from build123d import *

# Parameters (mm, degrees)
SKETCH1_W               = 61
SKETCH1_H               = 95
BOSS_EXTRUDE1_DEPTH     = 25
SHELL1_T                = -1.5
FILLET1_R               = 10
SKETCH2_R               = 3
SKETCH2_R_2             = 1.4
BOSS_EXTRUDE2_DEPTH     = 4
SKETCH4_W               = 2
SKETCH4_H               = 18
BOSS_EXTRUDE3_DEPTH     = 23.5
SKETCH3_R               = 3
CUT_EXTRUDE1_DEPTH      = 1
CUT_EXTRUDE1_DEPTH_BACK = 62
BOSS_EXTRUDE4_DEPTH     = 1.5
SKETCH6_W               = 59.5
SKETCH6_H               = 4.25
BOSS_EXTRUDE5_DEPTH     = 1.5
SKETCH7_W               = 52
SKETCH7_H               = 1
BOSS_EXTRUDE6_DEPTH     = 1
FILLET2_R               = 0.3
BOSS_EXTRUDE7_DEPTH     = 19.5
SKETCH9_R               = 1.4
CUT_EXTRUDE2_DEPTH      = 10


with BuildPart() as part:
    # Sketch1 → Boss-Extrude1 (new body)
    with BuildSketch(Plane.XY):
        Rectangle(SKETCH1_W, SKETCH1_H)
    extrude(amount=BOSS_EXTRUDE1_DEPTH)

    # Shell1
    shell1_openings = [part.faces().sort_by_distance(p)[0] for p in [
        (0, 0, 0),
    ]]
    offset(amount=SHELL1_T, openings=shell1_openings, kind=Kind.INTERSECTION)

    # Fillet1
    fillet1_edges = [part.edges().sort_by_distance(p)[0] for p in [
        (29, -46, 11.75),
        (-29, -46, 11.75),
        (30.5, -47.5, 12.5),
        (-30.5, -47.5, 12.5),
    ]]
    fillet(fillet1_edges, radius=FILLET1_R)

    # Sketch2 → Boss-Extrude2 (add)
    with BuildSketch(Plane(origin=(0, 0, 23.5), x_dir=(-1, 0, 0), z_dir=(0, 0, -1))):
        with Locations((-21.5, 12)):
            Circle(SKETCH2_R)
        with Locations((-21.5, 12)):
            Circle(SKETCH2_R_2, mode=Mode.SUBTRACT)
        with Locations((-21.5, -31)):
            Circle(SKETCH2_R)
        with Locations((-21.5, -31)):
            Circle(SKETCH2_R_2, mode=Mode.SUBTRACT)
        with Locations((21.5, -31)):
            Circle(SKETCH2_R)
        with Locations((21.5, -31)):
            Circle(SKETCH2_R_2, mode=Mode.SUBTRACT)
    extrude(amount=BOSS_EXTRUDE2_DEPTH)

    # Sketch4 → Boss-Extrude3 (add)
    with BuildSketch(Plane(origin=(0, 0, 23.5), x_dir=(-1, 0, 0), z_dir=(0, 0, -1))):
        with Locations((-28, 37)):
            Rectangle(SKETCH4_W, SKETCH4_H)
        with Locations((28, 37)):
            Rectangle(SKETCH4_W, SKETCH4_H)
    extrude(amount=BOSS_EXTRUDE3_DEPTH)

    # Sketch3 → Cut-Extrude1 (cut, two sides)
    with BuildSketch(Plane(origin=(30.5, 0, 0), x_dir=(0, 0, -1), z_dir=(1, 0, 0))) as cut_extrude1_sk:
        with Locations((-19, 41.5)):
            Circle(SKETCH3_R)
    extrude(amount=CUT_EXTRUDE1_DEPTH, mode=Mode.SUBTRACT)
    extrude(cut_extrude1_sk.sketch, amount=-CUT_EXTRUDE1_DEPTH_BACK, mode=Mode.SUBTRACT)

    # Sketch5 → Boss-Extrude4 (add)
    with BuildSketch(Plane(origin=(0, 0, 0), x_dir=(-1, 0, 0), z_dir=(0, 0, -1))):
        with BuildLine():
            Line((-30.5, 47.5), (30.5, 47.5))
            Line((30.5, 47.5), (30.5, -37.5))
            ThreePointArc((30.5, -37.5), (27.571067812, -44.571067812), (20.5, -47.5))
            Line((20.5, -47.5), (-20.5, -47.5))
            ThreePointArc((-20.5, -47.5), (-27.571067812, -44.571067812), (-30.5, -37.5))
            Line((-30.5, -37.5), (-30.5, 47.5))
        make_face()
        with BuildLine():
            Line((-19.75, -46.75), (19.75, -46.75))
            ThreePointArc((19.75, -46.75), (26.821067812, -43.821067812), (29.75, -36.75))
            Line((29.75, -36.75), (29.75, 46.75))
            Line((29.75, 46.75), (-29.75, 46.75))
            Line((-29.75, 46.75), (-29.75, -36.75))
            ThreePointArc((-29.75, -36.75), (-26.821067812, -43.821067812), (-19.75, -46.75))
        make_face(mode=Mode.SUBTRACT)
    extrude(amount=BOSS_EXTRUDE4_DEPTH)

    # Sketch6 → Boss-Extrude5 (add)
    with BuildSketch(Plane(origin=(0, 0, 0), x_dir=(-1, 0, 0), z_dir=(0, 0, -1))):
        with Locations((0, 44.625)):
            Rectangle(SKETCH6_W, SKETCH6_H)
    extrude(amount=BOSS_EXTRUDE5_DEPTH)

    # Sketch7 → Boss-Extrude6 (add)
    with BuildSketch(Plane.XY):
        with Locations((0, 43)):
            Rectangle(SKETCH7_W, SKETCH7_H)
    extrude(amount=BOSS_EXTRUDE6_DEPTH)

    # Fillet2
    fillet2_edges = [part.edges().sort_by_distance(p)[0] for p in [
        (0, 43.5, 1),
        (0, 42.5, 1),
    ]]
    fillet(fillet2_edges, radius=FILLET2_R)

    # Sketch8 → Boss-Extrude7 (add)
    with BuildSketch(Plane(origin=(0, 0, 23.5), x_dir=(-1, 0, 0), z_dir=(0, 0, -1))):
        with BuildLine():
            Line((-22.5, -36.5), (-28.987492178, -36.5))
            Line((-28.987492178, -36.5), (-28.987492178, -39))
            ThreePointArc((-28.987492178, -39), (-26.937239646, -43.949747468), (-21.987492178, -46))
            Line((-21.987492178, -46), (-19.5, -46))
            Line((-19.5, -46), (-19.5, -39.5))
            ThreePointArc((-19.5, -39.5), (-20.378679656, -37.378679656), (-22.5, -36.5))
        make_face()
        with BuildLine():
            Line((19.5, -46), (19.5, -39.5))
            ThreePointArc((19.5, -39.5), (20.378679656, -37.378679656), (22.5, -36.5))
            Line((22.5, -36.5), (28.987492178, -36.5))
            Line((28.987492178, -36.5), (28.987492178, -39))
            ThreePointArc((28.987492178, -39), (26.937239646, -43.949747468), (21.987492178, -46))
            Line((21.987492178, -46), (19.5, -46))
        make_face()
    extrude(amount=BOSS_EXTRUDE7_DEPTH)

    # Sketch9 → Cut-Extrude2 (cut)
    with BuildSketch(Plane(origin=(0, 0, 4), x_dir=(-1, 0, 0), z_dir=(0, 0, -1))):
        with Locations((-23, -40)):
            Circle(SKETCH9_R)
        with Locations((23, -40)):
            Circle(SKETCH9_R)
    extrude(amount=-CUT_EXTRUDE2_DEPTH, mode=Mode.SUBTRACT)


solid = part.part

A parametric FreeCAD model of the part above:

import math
import FreeCAD as App
import Part
import Sketcher
from FreeCAD import Vector


def edges_at(feature, points):
    """Names of the edges that pass closest to the given points."""
    edges = feature.Shape.Edges
    near = lambda p: min(range(len(edges)), key=lambda i: edges[i].distToShape(Part.Vertex(*p))[0])
    return sorted({f"Edge{near(p) + 1}" for p in points})


def faces_at(feature, points):
    """Names of the faces that lie closest to the given points."""
    faces = feature.Shape.Faces
    near = lambda p: min(range(len(faces)), key=lambda i: faces[i].distToShape(Part.Vertex(*p))[0])
    return sorted({f"Face{near(p) + 1}" for p in points})

doc = App.newDocument("Part")
params = doc.addObject("Spreadsheet::Sheet", "Params")
for row, (alias, value) in enumerate([
    ("sketch1_width", "61 mm"),
    ("sketch1_height", "95 mm"),
    ("pad1_length", "25 mm"),
    ("thickness_wall", "1.5 mm"),
    ("fillet_radius", "10 mm"),
    ("sketch2_diameter", "6 mm"),
    ("sketch2_diameter2", "2.8 mm"),
    ("pad2_length", "4 mm"),
    ("sketch3_width", "2 mm"),
    ("sketch3_height", "18 mm"),
    ("pad3_length", "23.5 mm"),
    ("sketch4_diameter", "6 mm"),
    ("sketch5_radius", "10 mm"),
    ("sketch5_width", "61 mm"),
    ("sketch5_height", "85 mm"),
    ("sketch5_width2", "59.5 mm"),
    ("sketch5_height2", "83.5 mm"),
    ("pad4_length", "1.5 mm"),
    ("sketch6_width", "59.5 mm"),
    ("sketch6_height", "4.25 mm"),
    ("pad5_length", "1.5 mm"),
    ("sketch7_width", "52 mm"),
    ("sketch7_height", "1 mm"),
    ("pad6_length", "1 mm"),
    ("fillet2_radius", "0.3 mm"),
    ("sketch8_radius", "7 mm"),
    ("sketch8_radius2", "3 mm"),
    ("sketch8_height", "2.5 mm"),
    ("pad7_length", "19.5 mm"),
    ("sketch9_diameter", "2.8 mm"),
    ("pocket2_length", "10 mm"),
], start=1):
    params.set(f"A{row}", alias)
    params.set(f"B{row}", "=" + value)
    params.setAlias(f"B{row}", alias)

body = doc.addObject("PartDesign::Body", "Body")

sketch1 = body.newObject("Sketcher::SketchObject", "Sketch")
sketch1.AttachmentSupport = (doc.getObject("XY_Plane"), [""])
sketch1.MapMode = "FlatFace"
sketch1.addGeometry([
    Part.LineSegment(Vector(-30.5, 47.5, 0), Vector(-30.5, -47.5, 0)),
    Part.LineSegment(Vector(-30.5, -47.5, 0), Vector(30.5, -47.5, 0)),
    Part.LineSegment(Vector(30.5, -47.5, 0), Vector(30.5, 47.5, 0)),
    Part.LineSegment(Vector(30.5, 47.5, 0), Vector(-30.5, 47.5, 0)),
], False)
sketch1.addConstraint([
    Sketcher.Constraint("Coincident", 0, 2, 1, 1),
    Sketcher.Constraint("Coincident", 1, 2, 2, 1),
    Sketcher.Constraint("Coincident", 2, 2, 3, 1),
    Sketcher.Constraint("Coincident", 3, 2, 0, 1),
    Sketcher.Constraint("Vertical", 0),
    Sketcher.Constraint("Horizontal", 1),
    Sketcher.Constraint("Vertical", 2),
    Sketcher.Constraint("Horizontal", 3),
    Sketcher.Constraint("Symmetric", 0, 2, 2, 2, -1, 1),
    Sketcher.Constraint("DistanceX", 1, 1, 1, 2, 61.0),
    Sketcher.Constraint("DistanceY", 0, 2, 0, 1, 95.0),
])
sketch1.setExpression("Constraints[9]", "Params.sketch1_width")
sketch1.setExpression("Constraints[10]", "Params.sketch1_height")
pad1 = body.newObject("PartDesign::Pad", "Pad")
pad1.Profile = sketch1
pad1.setExpression("Length", "Params.pad1_length")
doc.recompute()

thickness = body.newObject("PartDesign::Thickness", "Thickness")
thickness.Base = (pad1, faces_at(pad1, [(0, 0, 0)]))
thickness.setExpression("Value", "Params.thickness_wall")
thickness.Reversed = True
thickness.Join = "Intersection"
doc.recompute()

fillet = body.newObject("PartDesign::Fillet", "Fillet")
fillet.Base = (thickness, edges_at(thickness, [
    (29, -46, 11.75),
    (-29, -46, 11.75),
    (30.5, -47.5, 12.5),
    (-30.5, -47.5, 12.5),
]))
fillet.setExpression("Radius", "Params.fillet_radius")

sketch2 = body.newObject("Sketcher::SketchObject", "Sketch001")
sketch2.AttachmentSupport = (doc.getObject("XY_Plane"), [""])
sketch2.MapMode = "FlatFace"
sketch2.AttachmentOffset = App.Placement(Vector(0, 0, 23.5), App.Rotation())
sketch2.addGeometry([
    Part.Circle(Vector(21.5, 12, 0), Vector(0, 0, 1), 3),
    Part.Circle(Vector(21.5, 12, 0), Vector(0, 0, 1), 1.4),
    Part.Circle(Vector(21.5, -31, 0), Vector(0, 0, 1), 3),
    Part.Circle(Vector(21.5, -31, 0), Vector(0, 0, 1), 1.4),
    Part.Circle(Vector(-21.5, -31, 0), Vector(0, 0, 1), 3),
    Part.Circle(Vector(-21.5, -31, 0), Vector(0, 0, 1), 1.4),
], False)
sketch2.addConstraint([
    Sketcher.Constraint("Coincident", 1, 3, 0, 3),
    Sketcher.Constraint("Coincident", 3, 3, 2, 3),
    Sketcher.Constraint("Coincident", 5, 3, 4, 3),
    Sketcher.Constraint("Equal", 0, 2),
    Sketcher.Constraint("Equal", 1, 3),
    Sketcher.Constraint("Equal", 2, 4),
    Sketcher.Constraint("Equal", 3, 5),
    Sketcher.Constraint("Symmetric", 2, 3, 4, 3, -2),
    Sketcher.Constraint("Vertical", 1, 3, 2, 3),
    Sketcher.Constraint("Diameter", 0, 6.0),
    Sketcher.Constraint("Diameter", 1, 2.8),
    Sketcher.Constraint("DistanceY", -1, 1, 0, 3, 12.0),
    Sketcher.Constraint("DistanceY", 2, 3, -1, 1, 31.0),
    Sketcher.Constraint("DistanceX", 4, 3, 2, 3, 43.0),
])
sketch2.setExpression("Constraints[9]", "Params.sketch2_diameter")
sketch2.setExpression("Constraints[10]", "Params.sketch2_diameter2")
pad2 = body.newObject("PartDesign::Pad", "Pad001")
pad2.Profile = sketch2
pad2.setExpression("Length", "Params.pad2_length")
pad2.Reversed = True

sketch3 = body.newObject("Sketcher::SketchObject", "Sketch002")
sketch3.AttachmentSupport = (doc.getObject("XY_Plane"), [""])
sketch3.MapMode = "FlatFace"
sketch3.AttachmentOffset = App.Placement(Vector(0, 0, 23.5), App.Rotation())
sketch3.addGeometry([
    Part.LineSegment(Vector(29, 46, 0), Vector(29, 28, 0)),
    Part.LineSegment(Vector(29, 28, 0), Vector(27, 28, 0)),
    Part.LineSegment(Vector(27, 28, 0), Vector(27, 46, 0)),
    Part.LineSegment(Vector(27, 46, 0), Vector(29, 46, 0)),
    Part.LineSegment(Vector(-27, 46, 0), Vector(-27, 28, 0)),
    Part.LineSegment(Vector(-27, 28, 0), Vector(-29, 28, 0)),
    Part.LineSegment(Vector(-29, 28, 0), Vector(-29, 46, 0)),
    Part.LineSegment(Vector(-29, 46, 0), Vector(-27, 46, 0)),
], False)
sketch3.addConstraint([
    Sketcher.Constraint("Coincident", 0, 2, 1, 1),
    Sketcher.Constraint("Coincident", 1, 2, 2, 1),
    Sketcher.Constraint("Coincident", 2, 2, 3, 1),
    Sketcher.Constraint("Coincident", 3, 2, 0, 1),
    Sketcher.Constraint("Coincident", 4, 2, 5, 1),
    Sketcher.Constraint("Coincident", 5, 2, 6, 1),
    Sketcher.Constraint("Coincident", 6, 2, 7, 1),
    Sketcher.Constraint("Coincident", 7, 2, 4, 1),
    Sketcher.Constraint("Vertical", 0),
    Sketcher.Constraint("Horizontal", 1),
    Sketcher.Constraint("Vertical", 2),
    Sketcher.Constraint("Horizontal", 3),
    Sketcher.Constraint("Vertical", 4),
    Sketcher.Constraint("Horizontal", 5),
    Sketcher.Constraint("Vertical", 6),
    Sketcher.Constraint("Horizontal", 7),
    Sketcher.Constraint("Symmetric", 1, 2, 4, 2, -2),
    Sketcher.Constraint("Symmetric", 3, 2, 6, 2, -2),
    Sketcher.Constraint("DistanceX", 1, 2, 1, 1, 2.0),
    Sketcher.Constraint("DistanceY", 0, 2, 0, 1, 18.0),
    Sketcher.Constraint("DistanceX", -1, 1, 0, 2, 29.0),
    Sketcher.Constraint("DistanceY", -1, 1, 0, 2, 28.0),
])
sketch3.setExpression("Constraints[18]", "Params.sketch3_width")
sketch3.setExpression("Constraints[19]", "Params.sketch3_height")
pad3 = body.newObject("PartDesign::Pad", "Pad002")
pad3.Profile = sketch3
pad3.setExpression("Length", "Params.pad3_length")
pad3.Reversed = True

sketch4 = body.newObject("Sketcher::SketchObject", "Sketch003")
sketch4.AttachmentSupport = (doc.getObject("YZ_Plane"), [""])
sketch4.MapMode = "FlatFace"
sketch4.AttachmentOffset = App.Placement(Vector(0, 0, 30.5), App.Rotation())
sketch4.addGeometry(Part.Circle(Vector(41.5, 19, 0), Vector(0, 0, 1), 3), False)
sketch4.addConstraint([
    Sketcher.Constraint("Diameter", 0, 6.0),
    Sketcher.Constraint("DistanceY", -1, 1, 0, 3, 19.0),
    Sketcher.Constraint("DistanceX", -1, 1, 0, 3, 41.5),
])
sketch4.setExpression("Constraints[0]", "Params.sketch4_diameter")
pocket1 = body.newObject("PartDesign::Pocket", "Pocket")
pocket1.Profile = sketch4
pocket1.Type = "ThroughAll"
pocket1.Midplane = True

sketch5 = body.newObject("Sketcher::SketchObject", "Sketch004")
sketch5.AttachmentSupport = (doc.getObject("XY_Plane"), [""])
sketch5.MapMode = "FlatFace"
sketch5.addGeometry([
    Part.LineSegment(Vector(-30.5, 47.5, 0), Vector(30.5, 47.5, 0)),
    Part.LineSegment(Vector(30.5, 47.5, 0), Vector(30.5, -37.5, 0)),
    Part.ArcOfCircle(Part.Circle(Vector(20.5, -37.5, 0), Vector(0, 0, 1), 10), math.radians(-90), math.radians(0)),
    Part.LineSegment(Vector(20.5, -47.5, 0), Vector(-20.5, -47.5, 0)),
    Part.ArcOfCircle(Part.Circle(Vector(-20.5, -37.5, 0), Vector(0, 0, 1), 10), math.radians(180), math.radians(270)),
    Part.LineSegment(Vector(-30.5, -37.5, 0), Vector(-30.5, 47.5, 0)),
    Part.ArcOfCircle(Part.Circle(Vector(19.75, -36.75, 0), Vector(0, 0, 1), 10), math.radians(-90), math.radians(0)),
    Part.LineSegment(Vector(29.75, -36.75, 0), Vector(29.75, 46.75, 0)),
    Part.LineSegment(Vector(29.75, 46.75, 0), Vector(-29.75, 46.75, 0)),
    Part.LineSegment(Vector(-29.75, 46.75, 0), Vector(-29.75, -36.75, 0)),
    Part.ArcOfCircle(Part.Circle(Vector(-19.75, -36.75, 0), Vector(0, 0, 1), 10), math.radians(180), math.radians(270)),
    Part.LineSegment(Vector(-19.75, -46.75, 0), Vector(19.75, -46.75, 0)),
], False)
sketch5.addConstraint([
    Sketcher.Constraint("Coincident", 0, 2, 1, 1),
    Sketcher.Constraint("Tangent", 1, 2, 2, 2),
    Sketcher.Constraint("Tangent", 2, 1, 3, 1),
    Sketcher.Constraint("Tangent", 3, 2, 4, 2),
    Sketcher.Constraint("Tangent", 4, 1, 5, 1),
    Sketcher.Constraint("Coincident", 5, 2, 0, 1),
    Sketcher.Constraint("Tangent", 6, 2, 7, 1),
    Sketcher.Constraint("Coincident", 7, 2, 8, 1),
    Sketcher.Constraint("Coincident", 8, 2, 9, 1),
    Sketcher.Constraint("Tangent", 9, 2, 10, 1),
    Sketcher.Constraint("Tangent", 10, 2, 11, 1),
    Sketcher.Constraint("Tangent", 11, 2, 6, 1),
    Sketcher.Constraint("Horizontal", 0),
    Sketcher.Constraint("Vertical", 1),
    Sketcher.Constraint("Horizontal", 3),
    Sketcher.Constraint("Vertical", 5),
    Sketcher.Constraint("Vertical", 7),
    Sketcher.Constraint("Horizontal", 8),
    Sketcher.Constraint("Vertical", 9),
    Sketcher.Constraint("Horizontal", 11),
    Sketcher.Constraint("Equal", 2, 4),
    Sketcher.Constraint("Equal", 4, 6),
    Sketcher.Constraint("Equal", 6, 10),
    Sketcher.Constraint("Radius", 2, 10.0),
    Sketcher.Constraint("DistanceX", 0, 1, 0, 2, 61.0),
    Sketcher.Constraint("DistanceY", 1, 2, 1, 1, 85.0),
    Sketcher.Constraint("DistanceX", 8, 2, 8, 1, 59.5),
    Sketcher.Constraint("DistanceY", 7, 1, 7, 2, 83.5),
    Sketcher.Constraint("DistanceX", -1, 1, 2, 3, 20.5),
    Sketcher.Constraint("DistanceY", 2, 3, -1, 1, 37.5),
    Sketcher.Constraint("DistanceX", -1, 1, 6, 3, 19.75),
    Sketcher.Constraint("DistanceY", 6, 3, -1, 1, 36.75),
])
sketch5.setExpression("Constraints[23]", "Params.sketch5_radius")
sketch5.setExpression("Constraints[24]", "Params.sketch5_width")
sketch5.setExpression("Constraints[25]", "Params.sketch5_height")
sketch5.setExpression("Constraints[26]", "Params.sketch5_width2")
sketch5.setExpression("Constraints[27]", "Params.sketch5_height2")
pad4 = body.newObject("PartDesign::Pad", "Pad003")
pad4.Profile = sketch5
pad4.setExpression("Length", "Params.pad4_length")
pad4.Reversed = True

sketch6 = body.newObject("Sketcher::SketchObject", "Sketch005")
sketch6.AttachmentSupport = (doc.getObject("XY_Plane"), [""])
sketch6.MapMode = "FlatFace"
sketch6.addGeometry([
    Part.LineSegment(Vector(29.75, 46.75, 0), Vector(29.75, 42.5, 0)),
    Part.LineSegment(Vector(29.75, 42.5, 0), Vector(-29.75, 42.5, 0)),
    Part.LineSegment(Vector(-29.75, 42.5, 0), Vector(-29.75, 46.75, 0)),
    Part.LineSegment(Vector(-29.75, 46.75, 0), Vector(29.75, 46.75, 0)),
], False)
sketch6.addConstraint([
    Sketcher.Constraint("Coincident", 0, 2, 1, 1),
    Sketcher.Constraint("Coincident", 1, 2, 2, 1),
    Sketcher.Constraint("Coincident", 2, 2, 3, 1),
    Sketcher.Constraint("Coincident", 3, 2, 0, 1),
    Sketcher.Constraint("Vertical", 0),
    Sketcher.Constraint("Horizontal", 1),
    Sketcher.Constraint("Vertical", 2),
    Sketcher.Constraint("Horizontal", 3),
    Sketcher.Constraint("DistanceX", 1, 2, 1, 1, 59.5),
    Sketcher.Constraint("DistanceY", 0, 2, 0, 1, 4.25),
    Sketcher.Constraint("DistanceY", -1, 1, 0, 2, 42.5),
    Sketcher.Constraint("DistanceX", -1, 1, 0, 2, 29.75),
])
sketch6.setExpression("Constraints[8]", "Params.sketch6_width")
sketch6.setExpression("Constraints[9]", "Params.sketch6_height")
pad5 = body.newObject("PartDesign::Pad", "Pad004")
pad5.Profile = sketch6
pad5.setExpression("Length", "Params.pad5_length")
pad5.Reversed = True

sketch7 = body.newObject("Sketcher::SketchObject", "Sketch006")
sketch7.AttachmentSupport = (doc.getObject("XY_Plane"), [""])
sketch7.MapMode = "FlatFace"
sketch7.addGeometry([
    Part.LineSegment(Vector(-26, 43.5, 0), Vector(-26, 42.5, 0)),
    Part.LineSegment(Vector(-26, 42.5, 0), Vector(26, 42.5, 0)),
    Part.LineSegment(Vector(26, 42.5, 0), Vector(26, 43.5, 0)),
    Part.LineSegment(Vector(26, 43.5, 0), Vector(-26, 43.5, 0)),
], False)
sketch7.addConstraint([
    Sketcher.Constraint("Coincident", 0, 2, 1, 1),
    Sketcher.Constraint("Coincident", 1, 2, 2, 1),
    Sketcher.Constraint("Coincident", 2, 2, 3, 1),
    Sketcher.Constraint("Coincident", 3, 2, 0, 1),
    Sketcher.Constraint("Vertical", 0),
    Sketcher.Constraint("Horizontal", 1),
    Sketcher.Constraint("Vertical", 2),
    Sketcher.Constraint("Horizontal", 3),
    Sketcher.Constraint("DistanceX", 1, 1, 1, 2, 52.0),
    Sketcher.Constraint("DistanceY", 0, 2, 0, 1, 1.0),
    Sketcher.Constraint("DistanceX", 0, 2, -1, 1, 26.0),
    Sketcher.Constraint("DistanceY", -1, 1, 0, 2, 42.5),
])
sketch7.setExpression("Constraints[8]", "Params.sketch7_width")
sketch7.setExpression("Constraints[9]", "Params.sketch7_height")
pad6 = body.newObject("PartDesign::Pad", "Pad005")
pad6.Profile = sketch7
pad6.setExpression("Length", "Params.pad6_length")
doc.recompute()

fillet2 = body.newObject("PartDesign::Fillet", "Fillet001")
fillet2.Base = (pad6, edges_at(pad6, [(0, 43.5, 1), (0, 42.5, 1)]))
fillet2.setExpression("Radius", "Params.fillet2_radius")

sketch8 = body.newObject("Sketcher::SketchObject", "Sketch007")
sketch8.AttachmentSupport = (doc.getObject("XY_Plane"), [""])
sketch8.MapMode = "FlatFace"
sketch8.AttachmentOffset = App.Placement(Vector(0, 0, 23.5), App.Rotation())
sketch8.addGeometry([
    Part.LineSegment(Vector(22.5, -36.5, 0), Vector(28.987492, -36.5, 0)),
    Part.LineSegment(Vector(28.987492, -36.5, 0), Vector(28.987492, -39, 0)),
    Part.ArcOfCircle(Part.Circle(Vector(21.987492, -39, 0), Vector(0, 0, 1), 7), math.radians(-90), math.radians(0)),
    Part.LineSegment(Vector(21.987492, -46, 0), Vector(19.5, -46, 0)),
    Part.LineSegment(Vector(19.5, -46, 0), Vector(19.5, -39.5, 0)),
    Part.ArcOfCircle(Part.Circle(Vector(22.5, -39.5, 0), Vector(0, 0, 1), 3), math.radians(90), math.radians(180)),
    Part.LineSegment(Vector(-19.5, -39.5, 0), Vector(-19.5, -46, 0)),
    Part.LineSegment(Vector(-19.5, -46, 0), Vector(-21.987492, -46, 0)),
    Part.ArcOfCircle(Part.Circle(Vector(-21.987492, -39, 0), Vector(0, 0, 1), 7), math.radians(-180), math.radians(-90)),
    Part.LineSegment(Vector(-28.987492, -39, 0), Vector(-28.987492, -36.5, 0)),
    Part.LineSegment(Vector(-28.987492, -36.5, 0), Vector(-22.5, -36.5, 0)),
    Part.ArcOfCircle(Part.Circle(Vector(-22.5, -39.5, 0), Vector(0, 0, 1), 3), math.radians(0), math.radians(90)),
], False)
sketch8.addConstraint([
    Sketcher.Constraint("Coincident", 0, 2, 1, 1),
    Sketcher.Constraint("Tangent", 1, 2, 2, 2),
    Sketcher.Constraint("Tangent", 2, 1, 3, 1),
    Sketcher.Constraint("Coincident", 3, 2, 4, 1),
    Sketcher.Constraint("Tangent", 4, 2, 5, 2),
    Sketcher.Constraint("Tangent", 5, 1, 0, 1),
    Sketcher.Constraint("Coincident", 6, 2, 7, 1),
    Sketcher.Constraint("Tangent", 7, 2, 8, 2),
    Sketcher.Constraint("Tangent", 8, 1, 9, 1),
    Sketcher.Constraint("Coincident", 9, 2, 10, 1),
    Sketcher.Constraint("Tangent", 10, 2, 11, 2),
    Sketcher.Constraint("Tangent", 11, 1, 6, 1),
    Sketcher.Constraint("Horizontal", 0),
    Sketcher.Constraint("Vertical", 1),
    Sketcher.Constraint("Horizontal", 3),
    Sketcher.Constraint("Vertical", 4),
    Sketcher.Constraint("Vertical", 6),
    Sketcher.Constraint("Horizontal", 7),
    Sketcher.Constraint("Vertical", 9),
    Sketcher.Constraint("Horizontal", 10),
    Sketcher.Constraint("Equal", 2, 8),
    Sketcher.Constraint("Equal", 5, 11),
    Sketcher.Constraint("Symmetric", 2, 3, 8, 3, -2),
    Sketcher.Constraint("Symmetric", 5, 3, 11, 3, -2),
    Sketcher.Constraint("Radius", 2, 7.0),
    Sketcher.Constraint("Radius", 5, 3.0),
    Sketcher.Constraint("DistanceY", 1, 2, 1, 1, 2.5),
    Sketcher.Constraint("DistanceY", 2, 3, -1, 1, 39.0),
    Sketcher.Constraint("DistanceX", 11, 3, 5, 3, 45.0),
    Sketcher.Constraint("DistanceX", 0, 1, 0, 2, 6.487492),
])
sketch8.setExpression("Constraints[24]", "Params.sketch8_radius")
sketch8.setExpression("Constraints[25]", "Params.sketch8_radius2")
sketch8.setExpression("Constraints[26]", "Params.sketch8_height")
pad7 = body.newObject("PartDesign::Pad", "Pad006")
pad7.Profile = sketch8
pad7.setExpression("Length", "Params.pad7_length")
pad7.Reversed = True

sketch9 = body.newObject("Sketcher::SketchObject", "Sketch008")
sketch9.AttachmentSupport = (doc.getObject("XY_Plane"), [""])
sketch9.MapMode = "FlatFace"
sketch9.AttachmentOffset = App.Placement(Vector(0, 0, 4), App.Rotation())
sketch9.addGeometry([
    Part.Circle(Vector(23, -40, 0), Vector(0, 0, 1), 1.4),
    Part.Circle(Vector(-23, -40, 0), Vector(0, 0, 1), 1.4),
], False)
sketch9.addConstraint([
    Sketcher.Constraint("Equal", 0, 1),
    Sketcher.Constraint("Symmetric", 0, 3, 1, 3, -2),
    Sketcher.Constraint("Diameter", 0, 2.8),
    Sketcher.Constraint("DistanceX", -1, 1, 0, 3, 23.0),
    Sketcher.Constraint("DistanceY", 0, 3, -1, 1, 40.0),
])
sketch9.setExpression("Constraints[2]", "Params.sketch9_diameter")
pocket2 = body.newObject("PartDesign::Pocket", "Pocket001")
pocket2.Profile = sketch9
pocket2.setExpression("Length", "Params.pocket2_length")
pocket2.Reversed = True

doc.recompute()
